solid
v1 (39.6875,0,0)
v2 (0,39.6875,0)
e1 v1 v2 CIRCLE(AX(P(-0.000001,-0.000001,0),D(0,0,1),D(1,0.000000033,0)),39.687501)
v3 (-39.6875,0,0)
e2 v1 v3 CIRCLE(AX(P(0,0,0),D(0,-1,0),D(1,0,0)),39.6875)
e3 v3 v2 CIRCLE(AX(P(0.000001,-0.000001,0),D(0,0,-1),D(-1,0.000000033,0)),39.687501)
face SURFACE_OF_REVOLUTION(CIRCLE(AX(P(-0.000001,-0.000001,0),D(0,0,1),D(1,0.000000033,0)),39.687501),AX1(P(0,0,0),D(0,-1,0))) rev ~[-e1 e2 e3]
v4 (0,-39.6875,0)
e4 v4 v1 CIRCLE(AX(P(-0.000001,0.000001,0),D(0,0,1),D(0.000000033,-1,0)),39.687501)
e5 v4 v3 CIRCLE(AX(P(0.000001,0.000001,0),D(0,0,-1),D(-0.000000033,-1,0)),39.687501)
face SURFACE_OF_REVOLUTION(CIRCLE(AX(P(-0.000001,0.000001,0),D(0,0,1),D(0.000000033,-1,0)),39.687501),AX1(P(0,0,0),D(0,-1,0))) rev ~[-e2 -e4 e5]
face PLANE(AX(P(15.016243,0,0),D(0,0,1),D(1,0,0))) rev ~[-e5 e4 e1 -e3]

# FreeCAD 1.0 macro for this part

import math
import FreeCAD as App
import Part
import Sketcher
from FreeCAD import Vector
Q = App.Units.Quantity

doc = App.newDocument("Part")
params = doc.addObject("Spreadsheet::Sheet", "Params")
for row, (alias, value) in enumerate([
    ("sketch1_radius", "1.5625001 in"),
    ("revolution_angle", "180 deg"),
], start=1):
    params.set(f"A{row}", alias)
    params.set(f"B{row}", "=" + value)
    params.setAlias(f"B{row}", alias)

body = doc.addObject("PartDesign::Body", "Body")

sketch1 = body.newObject("Sketcher::SketchObject", "Sketch")
sketch1.AttachmentSupport = (doc.getObject("XY_Plane"), [""])
sketch1.MapMode = "FlatFace"
sketch1.addGeometry([
    Part.ArcOfCircle(Part.Circle(Vector(0, 0, 0), Vector(0, 0, 1), 40), math.radians(-90), math.radians(0)),
    Part.ArcOfCircle(Part.Circle(Vector(0, 0, 0), Vector(0, 0, 1), 40), math.radians(0), math.radians(90)),
    Part.LineSegment(Vector(0, 40, 0), Vector(0, -40, 0)),
], False)
sketch1.addConstraint([
    Sketcher.Constraint("Tangent", 0, 2, 1, 1),
    Sketcher.Constraint("Coincident", 1, 2, 2, 1),
    Sketcher.Constraint("Coincident", 2, 2, 0, 1),
    Sketcher.Constraint("Vertical", 2),
    Sketcher.Constraint("Coincident", 0, 3, -1, 1),
    Sketcher.Constraint("Equal", 0, 1),
    Sketcher.Constraint("PointOnObject", 0, 2, -1),
    Sketcher.Constraint("PointOnObject", 1, 2, -2),
    Sketcher.Constraint("Radius", 0, Q("1.5625001 in")),
])
sketch1.setExpression("Constraints[8]", "Params.sketch1_radius")
revolution = body.newObject("PartDesign::Revolution", "Revolution")
revolution.Profile = sketch1
revolution.ReferenceAxis = (sketch1, ["V_Axis"])
revolution.setExpression("Angle", "Params.revolution_angle")
revolution.Reversed = True

doc.recompute()
